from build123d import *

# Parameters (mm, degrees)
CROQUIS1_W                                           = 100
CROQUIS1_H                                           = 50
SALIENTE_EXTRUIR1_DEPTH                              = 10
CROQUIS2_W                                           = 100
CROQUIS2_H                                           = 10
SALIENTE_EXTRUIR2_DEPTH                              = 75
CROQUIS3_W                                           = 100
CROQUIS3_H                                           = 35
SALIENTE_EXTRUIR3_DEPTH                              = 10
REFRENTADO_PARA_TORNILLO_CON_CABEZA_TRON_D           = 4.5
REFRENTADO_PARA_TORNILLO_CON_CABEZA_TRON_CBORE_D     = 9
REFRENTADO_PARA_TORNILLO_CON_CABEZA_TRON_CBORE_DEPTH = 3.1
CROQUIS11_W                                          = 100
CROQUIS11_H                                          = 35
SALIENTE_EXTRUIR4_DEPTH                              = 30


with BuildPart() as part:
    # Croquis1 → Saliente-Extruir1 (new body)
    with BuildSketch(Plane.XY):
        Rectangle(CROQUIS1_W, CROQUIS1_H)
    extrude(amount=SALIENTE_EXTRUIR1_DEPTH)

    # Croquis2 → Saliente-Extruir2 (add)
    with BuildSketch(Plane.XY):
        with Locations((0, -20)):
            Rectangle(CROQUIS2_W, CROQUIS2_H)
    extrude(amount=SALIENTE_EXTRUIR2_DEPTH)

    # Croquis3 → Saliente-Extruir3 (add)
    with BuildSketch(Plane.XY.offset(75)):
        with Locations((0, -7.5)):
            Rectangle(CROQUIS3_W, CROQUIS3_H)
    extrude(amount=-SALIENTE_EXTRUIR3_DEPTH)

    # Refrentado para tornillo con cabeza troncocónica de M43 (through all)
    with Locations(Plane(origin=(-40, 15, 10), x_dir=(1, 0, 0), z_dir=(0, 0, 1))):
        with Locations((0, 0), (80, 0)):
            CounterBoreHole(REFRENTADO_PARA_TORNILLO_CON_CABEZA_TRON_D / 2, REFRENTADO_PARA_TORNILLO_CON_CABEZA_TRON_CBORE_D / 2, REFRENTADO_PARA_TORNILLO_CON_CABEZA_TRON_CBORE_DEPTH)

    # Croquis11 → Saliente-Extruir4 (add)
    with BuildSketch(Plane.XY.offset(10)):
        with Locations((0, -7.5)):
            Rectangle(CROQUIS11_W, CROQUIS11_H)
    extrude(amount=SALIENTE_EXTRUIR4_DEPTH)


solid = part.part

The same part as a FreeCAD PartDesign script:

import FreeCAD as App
import Part
import Sketcher

doc = App.newDocument("Part")
body = doc.addObject("PartDesign::Body", "Body")

# Sketch on XY plane
sketch1 = doc.addObject("Sketcher::SketchObject", "Sketch")
body.addObject(sketch1)
sketch1.AttachmentSupport = (doc.XY_Plane, [""])
sketch1.MapMode = "FlatFace"
sketch1.addGeometry(Part.LineSegment(App.Vector(-50, 25, 0), App.Vector(-50, -25, 0)), False)
sketch1.addGeometry(Part.LineSegment(App.Vector(-50, -25, 0), App.Vector(50, -25, 0)), False)
sketch1.addGeometry(Part.LineSegment(App.Vector(50, -25, 0), App.Vector(50, 25, 0)), False)
sketch1.addGeometry(Part.LineSegment(App.Vector(50, 25, 0), App.Vector(-50, 25, 0)), False)
sketch1.addConstraint(Sketcher.Constraint("Coincident", 0, 2, 1, 1))
sketch1.addConstraint(Sketcher.Constraint("Coincident", 1, 2, 2, 1))
sketch1.addConstraint(Sketcher.Constraint("Coincident", 2, 2, 3, 1))
sketch1.addConstraint(Sketcher.Constraint("Coincident", 3, 2, 0, 1))
sketch1.addConstraint(Sketcher.Constraint("Vertical", 0))
sketch1.addConstraint(Sketcher.Constraint("Horizontal", 1))
sketch1.addConstraint(Sketcher.Constraint("Vertical", 2))
sketch1.addConstraint(Sketcher.Constraint("Horizontal", 3))
sketch1.addConstraint(Sketcher.Constraint("Symmetric", 0, 2, 2, 2, -1, 1))
sketch1.addConstraint(Sketcher.Constraint("DistanceX", 1, 1, 1, 2, 100.0))
sketch1.addConstraint(Sketcher.Constraint("DistanceY", 0, 2, 0, 1, 50.0))
pad1 = doc.addObject("PartDesign::Pad", "Pad")
body.addObject(pad1)
pad1.Profile = sketch1
pad1.Length = 10

# Sketch on XY plane
sketch2 = doc.addObject("Sketcher::SketchObject", "Sketch001")
body.addObject(sketch2)
sketch2.AttachmentSupport = (doc.XY_Plane, [""])
sketch2.MapMode = "FlatFace"
sketch2.addGeometry(Part.LineSegment(App.Vector(-50, -15, 0), App.Vector(-50, -25, 0)), False)
sketch2.addGeometry(Part.LineSegment(App.Vector(-50, -25, 0), App.Vector(50, -25, 0)), False)
sketch2.addGeometry(Part.LineSegment(App.Vector(50, -25, 0), App.Vector(50, -15, 0)), False)
sketch2.addGeometry(Part.LineSegment(App.Vector(50, -15, 0), App.Vector(-50, -15, 0)), False)
sketch2.addConstraint(Sketcher.Constraint("Coincident", 0, 2, 1, 1))
sketch2.addConstraint(Sketcher.Constraint("Coincident", 1, 2, 2, 1))
sketch2.addConstraint(Sketcher.Constraint("Coincident", 2, 2, 3, 1))
sketch2.addConstraint(Sketcher.Constraint("Coincident", 3, 2, 0, 1))
sketch2.addConstraint(Sketcher.Constraint("Vertical", 0))
sketch2.addConstraint(Sketcher.Constraint("Horizontal", 1))
sketch2.addConstraint(Sketcher.Constraint("Vertical", 2))
sketch2.addConstraint(Sketcher.Constraint("Horizontal", 3))
sketch2.addConstraint(Sketcher.Constraint("DistanceX", 1, 1, 1, 2, 100.0))
sketch2.addConstraint(Sketcher.Constraint("DistanceY", 0, 2, 0, 1, 10.0))
sketch2.addConstraint(Sketcher.Constraint("DistanceX", 0, 2, -1, 1, 50.0))
sketch2.addConstraint(Sketcher.Constraint("DistanceY", 0, 2, -1, 1, 25.0))
pad2 = doc.addObject("PartDesign::Pad", "Pad001")
body.addObject(pad2)
pad2.Profile = sketch2
pad2.Length = 75

# Sketch on XY plane
sketch3 = doc.addObject("Sketcher::SketchObject", "Sketch002")
body.addObject(sketch3)
sketch3.AttachmentSupport = (doc.XY_Plane, [""])
sketch3.MapMode = "FlatFace"
sketch3.AttachmentOffset = App.Placement(App.Vector(0, 0, 75), App.Rotation())
sketch3.addGeometry(Part.LineSegment(App.Vector(-50, 10, 0), App.Vector(-50, -25, 0)), False)
sketch3.addGeometry(Part.LineSegment(App.Vector(-50, -25, 0), App.Vector(50, -25, 0)), False)
sketch3.addGeometry(Part.LineSegment(App.Vector(50, -25, 0), App.Vector(50, 10, 0)), False)
sketch3.addGeometry(Part.LineSegment(App.Vector(50, 10, 0), App.Vector(-50, 10, 0)), False)
sketch3.addConstraint(Sketcher.Constraint("Coincident", 0, 2, 1, 1))
sketch3.addConstraint(Sketcher.Constraint("Coincident", 1, 2, 2, 1))
sketch3.addConstraint(Sketcher.Constraint("Coincident", 2, 2, 3, 1))
sketch3.addConstraint(Sketcher.Constraint("Coincident", 3, 2, 0, 1))
sketch3.addConstraint(Sketcher.Constraint("Vertical", 0))
sketch3.addConstraint(Sketcher.Constraint("Horizontal", 1))
sketch3.addConstraint(Sketcher.Constraint("Vertical", 2))
sketch3.addConstraint(Sketcher.Constraint("Horizontal", 3))
sketch3.addConstraint(Sketcher.Constraint("DistanceX", 1, 1, 1, 2, 100.0))
sketch3.addConstraint(Sketcher.Constraint("DistanceY", 0, 2, 0, 1, 35.0))
sketch3.addConstraint(Sketcher.Constraint("DistanceX", 0, 2, -1, 1, 50.0))
sketch3.addConstraint(Sketcher.Constraint("DistanceY", 0, 2, -1, 1, 25.0))
pad3 = doc.addObject("PartDesign::Pad", "Pad002")
body.addObject(pad3)
pad3.Profile = sketch3
pad3.Length = 10
pad3.Reversed = True

# Sketch on XY plane
sketch4 = doc.addObject("Sketcher::SketchObject", "Sketch003")
body.addObject(sketch4)
sketch4.AttachmentSupport = (doc.XY_Plane, [""])
sketch4.MapMode = "FlatFace"
sketch4.AttachmentOffset = App.Placement(App.Vector(0, 0, 10), App.Rotation())
sketch4.addGeometry(Part.Circle(App.Vector(-40, 15, 0), App.Vector(0, 0, 1), 2.2), False)
sketch4.addGeometry(Part.Circle(App.Vector(40, 15, 0), App.Vector(0, 0, 1), 2.2), False)
sketch4.addConstraint(Sketcher.Constraint("Equal", 0, 1))
sketch4.addConstraint(Sketcher.Constraint("Symmetric", 0, 3, 1, 3, -2))
sketch4.addConstraint(Sketcher.Constraint("Diameter", 0, 4.5))
sketch4.addConstraint(Sketcher.Constraint("DistanceX", 0, 3, -1, 1, 40.0))
sketch4.addConstraint(Sketcher.Constraint("DistanceY", -1, 1, 0, 3, 15.0))
doc.recompute()
hole = doc.addObject("PartDesign::Hole", "Hole")
body.addObject(hole)
hole.Profile = sketch4
hole.ThreadType = "None"
hole.Diameter = 4.5
hole.DepthType = "ThroughAll"
hole.HoleCutType = "Counterbore"
hole.HoleCutDiameter = 9
hole.HoleCutDepth = 3.1

# Sketch on XY plane
sketch5 = doc.addObject("Sketcher::SketchObject", "Sketch004")
body.addObject(sketch5)
sketch5.AttachmentSupport = (doc.XY_Plane, [""])
sketch5.MapMode = "FlatFace"
sketch5.AttachmentOffset = App.Placement(App.Vector(0, 0, 10), App.Rotation())
sketch5.addGeometry(Part.LineSegment(App.Vector(-50, 10, 0), App.Vector(-50, -25, 0)), False)
sketch5.addGeometry(Part.LineSegment(App.Vector(-50, -25, 0), App.Vector(50, -25, 0)), False)
sketch5.addGeometry(Part.LineSegment(App.Vector(50, -25, 0), App.Vector(50, 10, 0)), False)
sketch5.addGeometry(Part.LineSegment(App.Vector(50, 10, 0), App.Vector(-50, 10, 0)), False)
sketch5.addConstraint(Sketcher.Constraint("Coincident", 0, 2, 1, 1))
sketch5.addConstraint(Sketcher.Constraint("Coincident", 1, 2, 2, 1))
sketch5.addConstraint(Sketcher.Constraint("Coincident", 2, 2, 3, 1))
sketch5.addConstraint(Sketcher.Constraint("Coincident", 3, 2, 0, 1))
sketch5.addConstraint(Sketcher.Constraint("Vertical", 0))
sketch5.addConstraint(Sketcher.Constraint("Horizontal", 1))
sketch5.addConstraint(Sketcher.Constraint("Vertical", 2))
sketch5.addConstraint(Sketcher.Constraint("Horizontal", 3))
sketch5.addConstraint(Sketcher.Constraint("DistanceX", 1, 1, 1, 2, 100.0))
sketch5.addConstraint(Sketcher.Constraint("DistanceY", 0, 2, 0, 1, 35.0))
sketch5.addConstraint(Sketcher.Constraint("DistanceX", 0, 2, -1, 1, 50.0))
sketch5.addConstraint(Sketcher.Constraint("DistanceY", 0, 2, -1, 1, 25.0))
pad4 = doc.addObject("PartDesign::Pad", "Pad003")
body.addObject(pad4)
pad4.Profile = sketch5
pad4.Length = 30

doc.recompute()
